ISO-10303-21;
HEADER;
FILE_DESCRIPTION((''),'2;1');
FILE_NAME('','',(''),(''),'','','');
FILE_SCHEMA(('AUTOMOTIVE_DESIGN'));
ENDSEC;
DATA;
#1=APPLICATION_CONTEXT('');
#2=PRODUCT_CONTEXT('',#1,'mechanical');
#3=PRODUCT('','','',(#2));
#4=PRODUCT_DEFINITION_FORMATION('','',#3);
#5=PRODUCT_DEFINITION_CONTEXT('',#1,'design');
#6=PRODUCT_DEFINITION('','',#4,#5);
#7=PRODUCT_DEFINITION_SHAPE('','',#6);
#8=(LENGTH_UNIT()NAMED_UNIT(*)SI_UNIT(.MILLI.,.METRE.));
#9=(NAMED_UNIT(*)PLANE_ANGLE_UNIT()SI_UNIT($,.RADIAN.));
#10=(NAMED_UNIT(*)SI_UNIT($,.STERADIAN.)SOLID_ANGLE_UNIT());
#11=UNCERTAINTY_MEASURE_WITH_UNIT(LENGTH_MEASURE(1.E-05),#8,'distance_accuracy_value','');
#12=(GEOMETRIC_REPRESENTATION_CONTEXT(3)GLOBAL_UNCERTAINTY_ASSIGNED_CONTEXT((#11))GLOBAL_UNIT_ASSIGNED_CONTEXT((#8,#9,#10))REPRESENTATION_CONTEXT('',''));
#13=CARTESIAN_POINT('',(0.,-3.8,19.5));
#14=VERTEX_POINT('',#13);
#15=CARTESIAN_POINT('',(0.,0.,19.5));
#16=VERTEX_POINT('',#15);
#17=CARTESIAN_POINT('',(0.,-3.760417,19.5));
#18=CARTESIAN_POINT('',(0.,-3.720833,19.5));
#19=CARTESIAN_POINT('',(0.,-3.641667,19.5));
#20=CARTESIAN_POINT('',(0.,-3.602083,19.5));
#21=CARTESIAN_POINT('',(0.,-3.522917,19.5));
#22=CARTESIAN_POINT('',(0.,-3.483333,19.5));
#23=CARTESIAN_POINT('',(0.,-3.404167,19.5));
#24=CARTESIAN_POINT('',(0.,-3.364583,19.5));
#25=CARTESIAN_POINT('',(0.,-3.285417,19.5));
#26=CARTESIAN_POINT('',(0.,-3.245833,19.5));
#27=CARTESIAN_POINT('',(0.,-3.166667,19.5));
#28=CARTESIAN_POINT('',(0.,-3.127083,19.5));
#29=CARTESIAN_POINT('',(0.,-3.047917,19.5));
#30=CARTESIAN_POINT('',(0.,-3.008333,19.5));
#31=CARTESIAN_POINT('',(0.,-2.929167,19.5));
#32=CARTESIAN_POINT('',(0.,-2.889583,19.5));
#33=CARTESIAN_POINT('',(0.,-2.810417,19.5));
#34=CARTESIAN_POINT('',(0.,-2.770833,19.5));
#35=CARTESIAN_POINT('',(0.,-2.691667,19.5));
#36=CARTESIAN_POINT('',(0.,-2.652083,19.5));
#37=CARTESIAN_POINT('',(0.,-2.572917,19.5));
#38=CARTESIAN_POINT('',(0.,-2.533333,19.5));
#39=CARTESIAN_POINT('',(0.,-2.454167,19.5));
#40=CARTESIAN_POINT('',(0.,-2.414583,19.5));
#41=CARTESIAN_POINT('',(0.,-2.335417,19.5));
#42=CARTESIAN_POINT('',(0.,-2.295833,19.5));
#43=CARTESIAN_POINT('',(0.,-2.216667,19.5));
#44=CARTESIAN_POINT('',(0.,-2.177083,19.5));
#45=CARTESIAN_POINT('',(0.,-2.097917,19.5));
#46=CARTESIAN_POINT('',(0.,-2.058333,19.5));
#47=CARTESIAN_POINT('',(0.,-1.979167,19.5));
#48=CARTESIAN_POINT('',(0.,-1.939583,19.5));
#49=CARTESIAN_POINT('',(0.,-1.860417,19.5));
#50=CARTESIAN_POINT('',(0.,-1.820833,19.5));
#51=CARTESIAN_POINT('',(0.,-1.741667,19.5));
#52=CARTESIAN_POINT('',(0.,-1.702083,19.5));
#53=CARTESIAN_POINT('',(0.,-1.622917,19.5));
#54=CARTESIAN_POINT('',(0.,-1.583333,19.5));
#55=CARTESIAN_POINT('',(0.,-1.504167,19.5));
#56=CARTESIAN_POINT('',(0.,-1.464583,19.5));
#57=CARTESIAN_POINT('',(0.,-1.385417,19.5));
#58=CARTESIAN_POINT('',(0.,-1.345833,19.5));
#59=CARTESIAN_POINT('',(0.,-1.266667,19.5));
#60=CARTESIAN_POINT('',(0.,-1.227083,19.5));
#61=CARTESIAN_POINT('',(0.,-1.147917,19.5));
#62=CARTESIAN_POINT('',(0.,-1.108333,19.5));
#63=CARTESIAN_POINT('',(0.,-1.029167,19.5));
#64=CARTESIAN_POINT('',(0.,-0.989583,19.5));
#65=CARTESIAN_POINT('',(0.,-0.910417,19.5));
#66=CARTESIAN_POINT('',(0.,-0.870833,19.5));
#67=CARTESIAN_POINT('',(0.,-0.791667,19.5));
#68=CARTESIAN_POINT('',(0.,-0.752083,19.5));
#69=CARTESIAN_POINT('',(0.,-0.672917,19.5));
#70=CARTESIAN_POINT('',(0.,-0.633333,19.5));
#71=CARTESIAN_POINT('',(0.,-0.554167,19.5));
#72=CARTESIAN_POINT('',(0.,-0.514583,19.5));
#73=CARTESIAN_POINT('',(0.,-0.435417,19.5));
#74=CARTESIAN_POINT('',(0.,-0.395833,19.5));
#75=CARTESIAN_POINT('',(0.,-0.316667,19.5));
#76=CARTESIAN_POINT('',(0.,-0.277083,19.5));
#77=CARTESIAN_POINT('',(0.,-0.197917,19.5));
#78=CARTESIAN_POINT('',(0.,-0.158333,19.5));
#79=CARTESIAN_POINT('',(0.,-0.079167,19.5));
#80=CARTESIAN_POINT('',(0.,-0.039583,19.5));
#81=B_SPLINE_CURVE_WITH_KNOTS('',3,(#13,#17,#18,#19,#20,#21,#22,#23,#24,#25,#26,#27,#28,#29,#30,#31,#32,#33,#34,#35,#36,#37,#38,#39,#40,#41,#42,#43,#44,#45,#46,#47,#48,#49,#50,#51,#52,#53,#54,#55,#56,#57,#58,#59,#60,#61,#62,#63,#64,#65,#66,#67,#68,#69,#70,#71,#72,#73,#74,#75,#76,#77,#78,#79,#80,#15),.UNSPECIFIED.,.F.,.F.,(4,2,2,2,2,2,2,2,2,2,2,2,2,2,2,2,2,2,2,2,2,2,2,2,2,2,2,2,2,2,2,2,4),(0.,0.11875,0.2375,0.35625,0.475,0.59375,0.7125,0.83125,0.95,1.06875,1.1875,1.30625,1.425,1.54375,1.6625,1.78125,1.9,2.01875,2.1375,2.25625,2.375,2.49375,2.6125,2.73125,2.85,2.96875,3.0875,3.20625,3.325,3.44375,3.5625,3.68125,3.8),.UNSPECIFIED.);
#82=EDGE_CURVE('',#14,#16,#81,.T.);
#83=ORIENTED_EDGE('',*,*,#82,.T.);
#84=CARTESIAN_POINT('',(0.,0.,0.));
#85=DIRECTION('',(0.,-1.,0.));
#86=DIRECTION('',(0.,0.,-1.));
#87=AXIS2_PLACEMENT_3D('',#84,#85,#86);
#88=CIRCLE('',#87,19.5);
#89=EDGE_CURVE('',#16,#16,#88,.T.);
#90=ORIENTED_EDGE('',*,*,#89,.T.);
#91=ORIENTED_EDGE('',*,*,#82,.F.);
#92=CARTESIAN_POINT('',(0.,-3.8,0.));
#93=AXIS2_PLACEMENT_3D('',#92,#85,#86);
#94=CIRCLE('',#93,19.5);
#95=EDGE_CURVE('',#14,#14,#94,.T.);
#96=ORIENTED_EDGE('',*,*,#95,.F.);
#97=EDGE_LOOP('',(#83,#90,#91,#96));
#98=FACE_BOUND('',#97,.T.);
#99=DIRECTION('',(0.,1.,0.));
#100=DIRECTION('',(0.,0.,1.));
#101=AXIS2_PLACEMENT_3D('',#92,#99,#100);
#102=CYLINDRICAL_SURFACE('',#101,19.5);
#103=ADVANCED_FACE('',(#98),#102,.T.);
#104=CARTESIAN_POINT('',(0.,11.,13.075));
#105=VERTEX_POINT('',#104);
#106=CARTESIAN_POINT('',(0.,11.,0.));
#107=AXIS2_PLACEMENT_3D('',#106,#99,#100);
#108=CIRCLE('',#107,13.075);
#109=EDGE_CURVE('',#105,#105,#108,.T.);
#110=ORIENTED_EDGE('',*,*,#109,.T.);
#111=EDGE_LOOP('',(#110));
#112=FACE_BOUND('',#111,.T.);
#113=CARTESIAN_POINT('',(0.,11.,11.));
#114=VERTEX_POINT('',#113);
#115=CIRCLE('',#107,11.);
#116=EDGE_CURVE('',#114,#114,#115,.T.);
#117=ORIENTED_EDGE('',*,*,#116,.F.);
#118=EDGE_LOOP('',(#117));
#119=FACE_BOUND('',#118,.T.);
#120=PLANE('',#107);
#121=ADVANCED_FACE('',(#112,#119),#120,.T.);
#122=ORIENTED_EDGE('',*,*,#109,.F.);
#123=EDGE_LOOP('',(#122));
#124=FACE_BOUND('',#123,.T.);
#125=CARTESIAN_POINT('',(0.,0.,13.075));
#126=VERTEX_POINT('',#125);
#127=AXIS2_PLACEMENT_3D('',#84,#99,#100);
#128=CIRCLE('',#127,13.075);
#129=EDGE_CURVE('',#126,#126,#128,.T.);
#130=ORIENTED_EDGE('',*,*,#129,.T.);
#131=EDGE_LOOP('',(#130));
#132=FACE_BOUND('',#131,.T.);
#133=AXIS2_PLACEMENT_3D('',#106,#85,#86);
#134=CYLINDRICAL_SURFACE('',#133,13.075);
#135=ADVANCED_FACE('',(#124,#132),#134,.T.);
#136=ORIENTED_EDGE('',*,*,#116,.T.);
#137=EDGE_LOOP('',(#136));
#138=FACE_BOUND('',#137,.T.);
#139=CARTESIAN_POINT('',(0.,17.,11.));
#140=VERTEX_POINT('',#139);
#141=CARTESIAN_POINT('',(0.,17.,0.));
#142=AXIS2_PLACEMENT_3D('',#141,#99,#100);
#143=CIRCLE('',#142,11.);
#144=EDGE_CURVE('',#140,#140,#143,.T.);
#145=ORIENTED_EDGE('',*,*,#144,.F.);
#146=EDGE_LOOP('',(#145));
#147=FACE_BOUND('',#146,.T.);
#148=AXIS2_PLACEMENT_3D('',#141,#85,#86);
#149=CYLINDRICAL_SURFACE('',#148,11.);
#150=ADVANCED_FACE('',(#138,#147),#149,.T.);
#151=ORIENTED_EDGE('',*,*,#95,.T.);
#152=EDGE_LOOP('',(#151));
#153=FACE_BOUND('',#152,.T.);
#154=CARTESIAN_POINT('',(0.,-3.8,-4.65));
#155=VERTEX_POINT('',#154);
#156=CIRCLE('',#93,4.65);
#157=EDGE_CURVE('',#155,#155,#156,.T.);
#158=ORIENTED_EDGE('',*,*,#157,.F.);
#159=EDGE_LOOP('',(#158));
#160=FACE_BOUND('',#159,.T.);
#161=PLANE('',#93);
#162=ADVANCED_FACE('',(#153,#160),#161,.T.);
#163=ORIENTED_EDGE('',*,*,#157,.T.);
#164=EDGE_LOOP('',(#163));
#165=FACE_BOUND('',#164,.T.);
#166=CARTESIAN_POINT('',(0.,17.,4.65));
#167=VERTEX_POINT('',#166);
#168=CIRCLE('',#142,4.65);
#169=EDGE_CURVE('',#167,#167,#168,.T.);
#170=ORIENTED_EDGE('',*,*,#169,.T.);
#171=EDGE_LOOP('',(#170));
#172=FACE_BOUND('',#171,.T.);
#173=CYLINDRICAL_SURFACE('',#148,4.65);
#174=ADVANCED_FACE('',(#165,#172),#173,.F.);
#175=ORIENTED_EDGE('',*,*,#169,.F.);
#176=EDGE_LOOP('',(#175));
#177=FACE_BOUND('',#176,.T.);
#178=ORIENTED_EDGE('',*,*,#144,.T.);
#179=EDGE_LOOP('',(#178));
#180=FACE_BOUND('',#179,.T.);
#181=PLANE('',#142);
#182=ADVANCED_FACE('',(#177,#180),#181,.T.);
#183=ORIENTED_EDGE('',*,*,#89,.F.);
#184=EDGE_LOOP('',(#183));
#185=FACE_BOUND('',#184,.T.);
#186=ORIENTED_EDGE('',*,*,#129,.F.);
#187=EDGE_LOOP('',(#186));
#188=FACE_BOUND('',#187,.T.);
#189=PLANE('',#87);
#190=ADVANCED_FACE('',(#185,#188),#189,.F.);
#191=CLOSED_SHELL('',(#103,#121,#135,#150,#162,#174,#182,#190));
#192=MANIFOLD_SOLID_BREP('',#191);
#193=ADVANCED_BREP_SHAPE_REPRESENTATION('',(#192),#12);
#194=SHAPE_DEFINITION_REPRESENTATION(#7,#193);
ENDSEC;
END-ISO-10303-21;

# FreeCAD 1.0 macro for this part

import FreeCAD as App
import Part
import Sketcher
Q = App.Units.Quantity

doc = App.newDocument("Part")
body = doc.addObject("PartDesign::Body", "Body")

sketch1 = doc.addObject("Sketcher::SketchObject", "Sketch")
body.addObject(sketch1)
sketch1.AttachmentSupport = (doc.XZ_Plane, [""])
sketch1.MapMode = "FlatFace"
sketch1.addGeometry([
    Part.Circle(App.Vector(0, 0, 0), App.Vector(0, 0, 1), 11),
    Part.Circle(App.Vector(0, 0, 0), App.Vector(0, 0, 1), 4.7),
], False)
sketch1.addConstraint([
    Sketcher.Constraint("Coincident", 0, 3, -1, 1),
    Sketcher.Constraint("Coincident", 1, 3, -1, 1),
    Sketcher.Constraint("Diameter", 0, Q("22 mm")),
    Sketcher.Constraint("Diameter", 1, Q("9.3 mm")),
])
pad1 = doc.addObject("PartDesign::Pad", "Pad")
body.addObject(pad1)
pad1.Profile = sketch1
pad1.Length = 17
pad1.Reversed = True

sketch2 = doc.addObject("Sketcher::SketchObject", "Sketch001")
body.addObject(sketch2)
sketch2.AttachmentSupport = (doc.XZ_Plane, [""])
sketch2.MapMode = "FlatFace"
sketch2.addGeometry([
    Part.Circle(App.Vector(0, 0, 0), App.Vector(0, 0, 1), 13),
    Part.Circle(App.Vector(0, 0, 0), App.Vector(0, 0, 1), 11),
], False)
sketch2.addConstraint([
    Sketcher.Constraint("Coincident", 0, 3, -1, 1),
    Sketcher.Constraint("Coincident", 1, 3, -1, 1),
    Sketcher.Constraint("Diameter", 1, Q("22 mm")),
    Sketcher.Constraint("Diameter", 0, Q("26.15 mm")),
])
pad2 = doc.addObject("PartDesign::Pad", "Pad001")
body.addObject(pad2)
pad2.Profile = sketch2
pad2.Length = 11
pad2.Reversed = True

sketch3 = doc.addObject("Sketcher::SketchObject", "Sketch002")
body.addObject(sketch3)
sketch3.AttachmentSupport = (doc.XZ_Plane, [""])
sketch3.MapMode = "FlatFace"
sketch3.AttachmentOffset = App.Placement(App.Vector(0, 0, 3.8), App.Rotation())
sketch3.addGeometry([
    Part.Circle(App.Vector(0, 0, 0), App.Vector(0, 0, 1), 19.5),
    Part.Circle(App.Vector(0, 0, 0), App.Vector(0, 0, 1), 4.7),
], False)
sketch3.addConstraint([
    Sketcher.Constraint("Coincident", 0, 3, -1, 1),
    Sketcher.Constraint("Coincident", 1, 3, -1, 1),
    Sketcher.Constraint("Diameter", 0, Q("39 mm")),
    Sketcher.Constraint("Diameter", 1, Q("9.3 mm")),
])
pad3 = doc.addObject("PartDesign::Pad", "Pad002")
body.addObject(pad3)
pad3.Profile = sketch3
pad3.Length = 3.8
pad3.Reversed = True

doc.recompute()
